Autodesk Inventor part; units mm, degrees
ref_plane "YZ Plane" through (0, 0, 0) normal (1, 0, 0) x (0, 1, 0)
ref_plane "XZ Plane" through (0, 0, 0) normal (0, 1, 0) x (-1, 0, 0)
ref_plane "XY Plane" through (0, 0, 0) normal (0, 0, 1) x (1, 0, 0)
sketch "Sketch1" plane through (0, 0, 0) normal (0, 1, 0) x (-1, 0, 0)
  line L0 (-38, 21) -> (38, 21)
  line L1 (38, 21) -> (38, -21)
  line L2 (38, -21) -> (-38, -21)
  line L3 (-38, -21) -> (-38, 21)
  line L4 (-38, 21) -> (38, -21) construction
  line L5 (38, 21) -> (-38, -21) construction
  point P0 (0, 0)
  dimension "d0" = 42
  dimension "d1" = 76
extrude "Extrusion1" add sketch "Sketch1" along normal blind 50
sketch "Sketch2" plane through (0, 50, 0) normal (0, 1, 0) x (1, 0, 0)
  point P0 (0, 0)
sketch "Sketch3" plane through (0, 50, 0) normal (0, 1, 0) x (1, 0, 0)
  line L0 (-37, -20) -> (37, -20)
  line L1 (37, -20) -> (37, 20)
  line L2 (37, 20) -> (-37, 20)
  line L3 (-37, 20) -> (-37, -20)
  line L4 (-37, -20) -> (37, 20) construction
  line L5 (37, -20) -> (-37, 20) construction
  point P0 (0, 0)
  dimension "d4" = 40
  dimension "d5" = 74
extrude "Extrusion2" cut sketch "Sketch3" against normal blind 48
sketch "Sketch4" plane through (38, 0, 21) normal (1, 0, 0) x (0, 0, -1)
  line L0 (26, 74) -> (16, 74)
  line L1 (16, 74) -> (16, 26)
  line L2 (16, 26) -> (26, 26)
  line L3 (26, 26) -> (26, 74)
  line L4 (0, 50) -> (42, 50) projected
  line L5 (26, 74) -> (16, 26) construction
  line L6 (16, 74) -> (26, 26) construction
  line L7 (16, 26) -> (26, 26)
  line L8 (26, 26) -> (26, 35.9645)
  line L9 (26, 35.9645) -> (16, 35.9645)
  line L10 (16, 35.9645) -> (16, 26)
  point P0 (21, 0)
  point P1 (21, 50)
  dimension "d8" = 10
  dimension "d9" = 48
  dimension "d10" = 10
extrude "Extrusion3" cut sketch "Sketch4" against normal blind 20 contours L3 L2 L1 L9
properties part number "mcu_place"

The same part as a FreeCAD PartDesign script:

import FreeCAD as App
import Part
import Sketcher
Q = App.Units.Quantity


def add_polygon(sketch, points):
    """Adds a closed chain of lines whose ends are joined by coincident constraints."""
    first, n = sketch.GeometryCount, len(points)
    for a, b in zip(points, points[1:] + points[:1]):
        sketch.addGeometry(Part.LineSegment(App.Vector(*a, 0), App.Vector(*b, 0)), False)
    for i in range(n):
        sketch.addConstraint(Sketcher.Constraint("Coincident", first + i, 2, first + (i + 1) % n, 1))

doc = App.newDocument("Part")
body = doc.addObject("PartDesign::Body", "Body")

sketch1 = doc.addObject("Sketcher::SketchObject", "Sketch")
body.addObject(sketch1)
sketch1.AttachmentSupport = (doc.XZ_Plane, [""])
sketch1.MapMode = "FlatFace"
add_polygon(sketch1, [(-38, 21), (38, 21), (38, -21), (-38, -21)])
sketch1.addConstraint([
    Sketcher.Constraint("Horizontal", 0),
    Sketcher.Constraint("Vertical", 1),
    Sketcher.Constraint("Horizontal", 2),
    Sketcher.Constraint("Vertical", 3),
    Sketcher.Constraint("Symmetric", 0, 2, 2, 2, -1, 1),
    Sketcher.Constraint("DistanceX", 0, 1, 0, 2, Q("76 mm")),
    Sketcher.Constraint("DistanceY", 1, 2, 1, 1, Q("42 mm")),
])
pad1 = doc.addObject("PartDesign::Pad", "Pad")
body.addObject(pad1)
pad1.Profile = sketch1
pad1.Length = 50
pad1.Reversed = True

sketch2 = doc.addObject("Sketcher::SketchObject", "Sketch001")
body.addObject(sketch2)
sketch2.AttachmentSupport = (doc.XZ_Plane, [""])
sketch2.MapMode = "FlatFace"
sketch2.AttachmentOffset = App.Placement(App.Vector(0, 0, -50), App.Rotation())
add_polygon(sketch2, [(-37, -20), (-37, 20), (37, 20), (37, -20)])
sketch2.addConstraint([
    Sketcher.Constraint("Vertical", 0),
    Sketcher.Constraint("Horizontal", 1),
    Sketcher.Constraint("Vertical", 2),
    Sketcher.Constraint("Horizontal", 3),
    Sketcher.Constraint("Symmetric", 0, 2, 2, 2, -1, 1),
    Sketcher.Constraint("DistanceX", 1, 1, 1, 2, Q("74 mm")),
    Sketcher.Constraint("DistanceY", 0, 1, 0, 2, Q("40 mm")),
])
pocket1 = doc.addObject("PartDesign::Pocket", "Pocket")
body.addObject(pocket1)
pocket1.Profile = sketch2
pocket1.Length = 48
pocket1.Reversed = True

sketch3 = doc.addObject("Sketcher::SketchObject", "Sketch002")
body.addObject(sketch3)
sketch3.AttachmentSupport = (doc.YZ_Plane, [""])
sketch3.MapMode = "FlatFace"
sketch3.AttachmentOffset = App.Placement(App.Vector(0, 0, 38), App.Rotation())
add_polygon(sketch3, [(26, -5), (35.9645, -5), (35.9645, 5), (26, 5)])
sketch3.addConstraint([
    Sketcher.Constraint("Horizontal", 0),
    Sketcher.Constraint("Vertical", 1),
    Sketcher.Constraint("Horizontal", 2),
    Sketcher.Constraint("Vertical", 3),
    Sketcher.Constraint("DistanceY", 1, 1, 1, 2, Q("10 mm")),
    Sketcher.Constraint("DistanceY", 0, 2, -1, 1, Q("5 mm")),
    Sketcher.Constraint("DistanceX", -1, 1, 2, 2, Q("26 mm")),
    Sketcher.Constraint("DistanceX", 0, 1, 0, 2, Q("9.9645 mm")),
])
pocket2 = doc.addObject("PartDesign::Pocket", "Pocket001")
body.addObject(pocket2)
pocket2.Profile = sketch3
pocket2.Length = 20

doc.recompute()
